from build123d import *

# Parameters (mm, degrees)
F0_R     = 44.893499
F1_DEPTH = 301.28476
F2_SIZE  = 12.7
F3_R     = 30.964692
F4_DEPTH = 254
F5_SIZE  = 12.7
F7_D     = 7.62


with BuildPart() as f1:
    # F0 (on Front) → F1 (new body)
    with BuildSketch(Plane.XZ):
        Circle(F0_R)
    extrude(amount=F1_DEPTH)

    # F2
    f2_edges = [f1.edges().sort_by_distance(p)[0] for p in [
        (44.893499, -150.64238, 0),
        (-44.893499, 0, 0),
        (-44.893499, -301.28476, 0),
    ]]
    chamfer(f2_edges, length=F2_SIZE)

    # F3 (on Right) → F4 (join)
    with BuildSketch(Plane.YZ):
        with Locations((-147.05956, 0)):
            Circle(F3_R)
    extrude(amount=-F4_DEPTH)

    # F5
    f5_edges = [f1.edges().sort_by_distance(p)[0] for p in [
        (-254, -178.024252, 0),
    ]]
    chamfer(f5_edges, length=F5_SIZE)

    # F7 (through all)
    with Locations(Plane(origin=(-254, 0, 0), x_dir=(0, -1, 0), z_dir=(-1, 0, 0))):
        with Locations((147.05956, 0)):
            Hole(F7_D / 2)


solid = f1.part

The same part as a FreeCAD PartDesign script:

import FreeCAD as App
import Part
import Sketcher
Q = App.Units.Quantity


def edges_at(feature, points):
    """Names of the edges that pass closest to the given points."""
    edges = feature.Shape.Edges
    near = lambda p: min(range(len(edges)), key=lambda i: edges[i].distToShape(Part.Vertex(*p))[0])
    return sorted({f"Edge{near(p) + 1}" for p in points})

doc = App.newDocument("Part")
body = doc.addObject("PartDesign::Body", "Body")

sketch1 = body.newObject("Sketcher::SketchObject", "Sketch")
sketch1.AttachmentSupport = (doc.getObject("XZ_Plane"), [""])
sketch1.MapMode = "FlatFace"
sketch1.addGeometry(Part.Circle(App.Vector(0, 0, 0), App.Vector(0, 0, 1), 45), False)
sketch1.addConstraint(Sketcher.Constraint("Coincident", 0, 3, -1, 1))
sketch1.addConstraint(Sketcher.Constraint("Diameter", 0, 89.786998))
pad1 = body.newObject("PartDesign::Pad", "Pad")
pad1.Profile = sketch1
pad1.Length = 301.28476
doc.recompute()

chamfer = body.newObject("PartDesign::Chamfer", "Chamfer")
chamfer.Base = (pad1, ["Edge1"])
chamfer.UseAllEdges = True
chamfer.Size = Q("0.5 in")

sketch2 = body.newObject("Sketcher::SketchObject", "Sketch001")
sketch2.AttachmentSupport = (doc.getObject("YZ_Plane"), [""])
sketch2.MapMode = "FlatFace"
sketch2.addGeometry(Part.Circle(App.Vector(-147, 0, 0), App.Vector(0, 0, 1), 31), False)
sketch2.addConstraint(Sketcher.Constraint("PointOnObject", 0, 3, -1))
sketch2.addConstraint(Sketcher.Constraint("Diameter", 0, 61.929384))
sketch2.addConstraint(Sketcher.Constraint("DistanceX", 0, 3, -1, 1, 147.05956))
pad2 = body.newObject("PartDesign::Pad", "Pad001")
pad2.Profile = sketch2
pad2.Length = Q("10 in")
pad2.Reversed = True
doc.recompute()

chamfer2 = body.newObject("PartDesign::Chamfer", "Chamfer001")
chamfer2.Base = (pad2, edges_at(pad2, [(-254, -178.024, 0)]))
chamfer2.Size = Q("0.5 in")

sketch3 = body.newObject("Sketcher::SketchObject", "Sketch002")
sketch3.AttachmentSupport = (doc.getObject("YZ_Plane"), [""])
sketch3.MapMode = "FlatFace"
sketch3.AttachmentOffset = App.Placement(App.Vector(0, 0, -10 * 25.4), App.Rotation())
sketch3.addGeometry(Part.Circle(App.Vector(-147.1, 0, 0), App.Vector(0, 0, 1), 3.8), False)
sketch3.addConstraint(Sketcher.Constraint("PointOnObject", 0, 3, -1))
sketch3.addConstraint(Sketcher.Constraint("Diameter", 0, Q("0.3 in")))
sketch3.addConstraint(Sketcher.Constraint("DistanceX", 0, 3, -1, 1, 147.05956))
doc.recompute()
hole = body.newObject("PartDesign::Hole", "Hole")
hole.Profile = sketch3
hole.ThreadType = "None"
hole.Diameter = Q("0.3 in")
hole.DepthType = "ThroughAll"
hole.Reversed = True

doc.recompute()
